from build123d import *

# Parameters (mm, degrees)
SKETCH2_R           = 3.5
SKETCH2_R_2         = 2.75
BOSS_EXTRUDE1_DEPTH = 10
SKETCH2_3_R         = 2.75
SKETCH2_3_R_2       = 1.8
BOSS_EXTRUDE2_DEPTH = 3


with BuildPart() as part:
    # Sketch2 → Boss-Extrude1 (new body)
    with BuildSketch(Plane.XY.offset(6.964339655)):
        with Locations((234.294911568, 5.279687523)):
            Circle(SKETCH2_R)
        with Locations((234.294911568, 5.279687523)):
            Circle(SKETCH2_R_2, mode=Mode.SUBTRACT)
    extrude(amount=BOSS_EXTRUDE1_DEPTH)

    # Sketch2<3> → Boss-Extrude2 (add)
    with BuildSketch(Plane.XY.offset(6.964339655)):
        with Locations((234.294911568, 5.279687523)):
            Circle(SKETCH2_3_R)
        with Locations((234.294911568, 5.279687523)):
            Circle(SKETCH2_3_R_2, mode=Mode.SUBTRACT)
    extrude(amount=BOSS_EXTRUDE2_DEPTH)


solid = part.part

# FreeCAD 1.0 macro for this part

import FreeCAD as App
import Part
import Sketcher
Q = App.Units.Quantity

doc = App.newDocument("Part")
body = doc.addObject("PartDesign::Body", "Body")

# Sketch on XY plane
sketch1 = doc.addObject("Sketcher::SketchObject", "Sketch")
body.addObject(sketch1)
sketch1.AttachmentSupport = (doc.XY_Plane, [""])
sketch1.MapMode = "FlatFace"
sketch1.AttachmentOffset = App.Placement(App.Vector(0, 0, 6.96434), App.Rotation())
sketch1.addGeometry([
    Part.Circle(App.Vector(234.3, 5.3, 0), App.Vector(0, 0, 1), 3.5),
    Part.Circle(App.Vector(234.3, 5.3, 0), App.Vector(0, 0, 1), 2.8),
], False)
sketch1.addConstraint([
    Sketcher.Constraint("Coincident", 1, 3, 0, 3),
    Sketcher.Constraint("Diameter", 0, Q("7 mm")),
    Sketcher.Constraint("Diameter", 1, Q("5.5 mm")),
    Sketcher.Constraint("DistanceX", -1, 1, 0, 3, Q("234.294912 mm")),
    Sketcher.Constraint("DistanceY", -1, 1, 0, 3, Q("5.279688 mm")),
])
pad1 = doc.addObject("PartDesign::Pad", "Pad")
body.addObject(pad1)
pad1.Profile = sketch1
pad1.Length = 10

# Sketch on XY plane
sketch2 = doc.addObject("Sketcher::SketchObject", "Sketch001")
body.addObject(sketch2)
sketch2.AttachmentSupport = (doc.XY_Plane, [""])
sketch2.MapMode = "FlatFace"
sketch2.AttachmentOffset = App.Placement(App.Vector(0, 0, 6.96434), App.Rotation())
sketch2.addGeometry([
    Part.Circle(App.Vector(234.3, 5.3, 0), App.Vector(0, 0, 1), 2.8),
    Part.Circle(App.Vector(234.3, 5.3, 0), App.Vector(0, 0, 1), 1.8),
], False)
sketch2.addConstraint([
    Sketcher.Constraint("Coincident", 1, 3, 0, 3),
    Sketcher.Constraint("Diameter", 0, Q("5.5 mm")),
    Sketcher.Constraint("Diameter", 1, Q("3.6 mm")),
    Sketcher.Constraint("DistanceX", -1, 1, 0, 3, Q("234.294912 mm")),
    Sketcher.Constraint("DistanceY", -1, 1, 0, 3, Q("5.279688 mm")),
])
pad2 = doc.addObject("PartDesign::Pad", "Pad001")
body.addObject(pad2)
pad2.Profile = sketch2
pad2.Length = 3

doc.recompute()
